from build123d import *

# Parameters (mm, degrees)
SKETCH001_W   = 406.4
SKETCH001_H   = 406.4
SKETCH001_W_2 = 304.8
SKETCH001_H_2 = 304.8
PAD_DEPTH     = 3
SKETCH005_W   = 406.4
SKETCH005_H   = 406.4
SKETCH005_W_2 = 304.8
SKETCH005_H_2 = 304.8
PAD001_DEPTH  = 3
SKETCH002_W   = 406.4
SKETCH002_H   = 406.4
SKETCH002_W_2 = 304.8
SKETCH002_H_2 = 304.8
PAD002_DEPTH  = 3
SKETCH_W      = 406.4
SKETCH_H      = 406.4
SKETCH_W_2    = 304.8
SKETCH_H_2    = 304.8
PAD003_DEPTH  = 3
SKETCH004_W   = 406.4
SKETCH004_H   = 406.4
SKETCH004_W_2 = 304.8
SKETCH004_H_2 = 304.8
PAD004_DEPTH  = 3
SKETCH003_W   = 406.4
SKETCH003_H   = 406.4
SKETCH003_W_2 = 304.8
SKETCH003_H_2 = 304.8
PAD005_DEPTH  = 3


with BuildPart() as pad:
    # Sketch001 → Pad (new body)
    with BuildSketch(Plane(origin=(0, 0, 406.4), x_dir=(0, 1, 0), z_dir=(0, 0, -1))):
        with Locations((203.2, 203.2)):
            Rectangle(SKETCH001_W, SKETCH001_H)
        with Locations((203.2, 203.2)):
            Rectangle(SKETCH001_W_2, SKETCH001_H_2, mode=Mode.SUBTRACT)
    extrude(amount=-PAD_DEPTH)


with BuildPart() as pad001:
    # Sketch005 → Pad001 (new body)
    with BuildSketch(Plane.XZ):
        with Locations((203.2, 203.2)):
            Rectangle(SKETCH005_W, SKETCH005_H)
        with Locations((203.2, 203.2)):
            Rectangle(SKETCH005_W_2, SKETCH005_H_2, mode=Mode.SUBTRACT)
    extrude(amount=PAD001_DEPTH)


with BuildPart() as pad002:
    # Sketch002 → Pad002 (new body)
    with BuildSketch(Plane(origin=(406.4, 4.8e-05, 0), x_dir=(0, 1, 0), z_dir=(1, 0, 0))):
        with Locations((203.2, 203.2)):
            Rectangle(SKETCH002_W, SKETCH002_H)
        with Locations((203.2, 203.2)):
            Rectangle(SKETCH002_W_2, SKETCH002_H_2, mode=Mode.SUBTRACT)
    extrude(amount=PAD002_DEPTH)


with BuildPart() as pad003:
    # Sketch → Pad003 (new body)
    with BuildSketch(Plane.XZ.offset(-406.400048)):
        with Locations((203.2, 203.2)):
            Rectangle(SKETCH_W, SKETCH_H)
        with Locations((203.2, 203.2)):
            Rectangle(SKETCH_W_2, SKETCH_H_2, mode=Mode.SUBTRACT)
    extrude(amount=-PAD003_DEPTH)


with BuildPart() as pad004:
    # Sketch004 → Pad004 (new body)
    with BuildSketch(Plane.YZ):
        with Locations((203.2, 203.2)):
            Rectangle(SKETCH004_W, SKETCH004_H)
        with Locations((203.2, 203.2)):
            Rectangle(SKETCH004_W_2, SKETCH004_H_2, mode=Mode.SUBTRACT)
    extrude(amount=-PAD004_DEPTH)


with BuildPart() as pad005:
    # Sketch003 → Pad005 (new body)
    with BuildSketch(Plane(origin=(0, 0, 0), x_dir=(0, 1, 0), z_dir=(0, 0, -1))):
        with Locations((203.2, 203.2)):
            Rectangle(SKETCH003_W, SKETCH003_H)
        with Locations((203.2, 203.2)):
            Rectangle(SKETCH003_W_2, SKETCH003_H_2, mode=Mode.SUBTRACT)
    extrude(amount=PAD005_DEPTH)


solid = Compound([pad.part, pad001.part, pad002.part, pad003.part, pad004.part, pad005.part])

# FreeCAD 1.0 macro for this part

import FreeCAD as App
import Part
import Sketcher
from FreeCAD import Vector
Q = App.Units.Quantity


def add_polygon(sketch, points):
    """Adds a closed chain of lines whose ends are joined by coincident constraints."""
    first, n = sketch.GeometryCount, len(points)
    for a, b in zip(points, points[1:] + points[:1]):
        sketch.addGeometry(Part.LineSegment(App.Vector(*a, 0), App.Vector(*b, 0)), False)
    for i in range(n):
        sketch.addConstraint(Sketcher.Constraint("Coincident", first + i, 2, first + (i + 1) % n, 1))

doc = App.newDocument("Part")
body = doc.addObject("PartDesign::Body", "Body")

sketch1 = body.newObject("Sketcher::SketchObject", "Sketch")
sketch1.AttachmentSupport = (doc.getObject("XY_Plane"), [""])
sketch1.MapMode = "FlatFace"
sketch1.AttachmentOffset = App.Placement(Vector(0, 0, 16 * 25.4), App.Rotation())
add_polygon(sketch1, [(406, 0), (0, 0), (0, 406), (406, 406)])
add_polygon(sketch1, [(51, 356), (51, 51), (356, 51), (356, 356)])
sketch1.addConstraint([
    Sketcher.Constraint("Horizontal", 0),
    Sketcher.Constraint("Vertical", 1),
    Sketcher.Constraint("Horizontal", 2),
    Sketcher.Constraint("Vertical", 3),
    Sketcher.Constraint("Vertical", 4),
    Sketcher.Constraint("Horizontal", 5),
    Sketcher.Constraint("Vertical", 6),
    Sketcher.Constraint("Horizontal", 7),
    Sketcher.Constraint("Coincident", 0, 2, -1, 1),
    Sketcher.Constraint("Equal", 2, 1),
    Sketcher.Constraint("Equal", 7, 4),
    Sketcher.Constraint("DistanceX", 0, 2, 0, 1, Q("16 in")),
    Sketcher.Constraint("DistanceX", 5, 1, 5, 2, Q("12 in")),
    Sketcher.Constraint("DistanceX", -1, 1, 4, 2, Q("2 in")),
    Sketcher.Constraint("DistanceY", -1, 1, 4, 2, Q("2 in")),
])
pad1 = body.newObject("PartDesign::Pad", "Pad")
pad1.Profile = sketch1
pad1.Length = 3
body2 = doc.addObject("PartDesign::Body", "Body001")

sketch2 = body2.newObject("Sketcher::SketchObject", "Sketch001")
sketch2.AttachmentSupport = (doc.getObject("XZ_Plane001"), [""])
sketch2.MapMode = "FlatFace"
add_polygon(sketch2, [(0, 406), (0, 0), (406, 0), (406, 406)])
add_polygon(sketch2, [(356, 51), (51, 51), (51, 356), (356, 356)])
sketch2.addConstraint([
    Sketcher.Constraint("Vertical", 0),
    Sketcher.Constraint("Horizontal", 1),
    Sketcher.Constraint("Vertical", 2),
    Sketcher.Constraint("Horizontal", 3),
    Sketcher.Constraint("Horizontal", 4),
    Sketcher.Constraint("Vertical", 5),
    Sketcher.Constraint("Horizontal", 6),
    Sketcher.Constraint("Vertical", 7),
    Sketcher.Constraint("Coincident", 0, 2, -1, 1),
    Sketcher.Constraint("Equal", 3, 0),
    Sketcher.Constraint("Equal", 6, 5),
    Sketcher.Constraint("DistanceX", 1, 1, 1, 2, Q("16 in")),
    Sketcher.Constraint("DistanceX", 4, 2, 4, 1, Q("12 in")),
    Sketcher.Constraint("DistanceX", -1, 1, 4, 2, Q("2 in")),
    Sketcher.Constraint("DistanceY", -1, 1, 4, 2, Q("2 in")),
])
pad2 = body2.newObject("PartDesign::Pad", "Pad001")
pad2.Profile = sketch2
pad2.Length = 3
body3 = doc.addObject("PartDesign::Body", "Body002")

sketch3 = body3.newObject("Sketcher::SketchObject", "Sketch002")
sketch3.AttachmentSupport = (doc.getObject("YZ_Plane002"), [""])
sketch3.MapMode = "FlatFace"
sketch3.AttachmentOffset = App.Placement(Vector(0, 0, 16 * 25.4), App.Rotation())
add_polygon(sketch3, [(0, 406), (0, 0), (406, 0), (406, 406)])
add_polygon(sketch3, [(356, 51), (51, 51), (51, 356), (356, 356)])
sketch3.addConstraint([
    Sketcher.Constraint("Vertical", 0),
    Sketcher.Constraint("Horizontal", 1),
    Sketcher.Constraint("Vertical", 2),
    Sketcher.Constraint("Horizontal", 3),
    Sketcher.Constraint("Horizontal", 4),
    Sketcher.Constraint("Vertical", 5),
    Sketcher.Constraint("Horizontal", 6),
    Sketcher.Constraint("Vertical", 7),
    Sketcher.Constraint("PointOnObject", 0, 2, -1),
    Sketcher.Constraint("Equal", 3, 0),
    Sketcher.Constraint("Equal", 6, 5),
    Sketcher.Constraint("DistanceX", 1, 1, 1, 2, Q("16 in")),
    Sketcher.Constraint("DistanceX", 4, 2, 4, 1, Q("12 in")),
    Sketcher.Constraint("DistanceY", -1, 1, 4, 2, Q("2 in")),
    Sketcher.Constraint("DistanceX", 0, 2, 4, 2, Q("2 in")),
    Sketcher.Constraint("DistanceX", -1, 1, 1, 2, Q("406.400048 mm")),
])
pad3 = body3.newObject("PartDesign::Pad", "Pad002")
pad3.Profile = sketch3
pad3.Length = 3
body4 = doc.addObject("PartDesign::Body", "Body003")

sketch4 = body4.newObject("Sketcher::SketchObject", "Sketch003")
sketch4.AttachmentSupport = (doc.getObject("XZ_Plane003"), [""])
sketch4.MapMode = "FlatFace"
sketch4.AttachmentOffset = App.Placement(Vector(0, 0, -406.400048), App.Rotation())
add_polygon(sketch4, [(0, 406), (0, 0), (406, 0), (406, 406)])
add_polygon(sketch4, [(356, 51), (51, 51), (51, 356), (356, 356)])
sketch4.addConstraint([
    Sketcher.Constraint("Vertical", 0),
    Sketcher.Constraint("Horizontal", 1),
    Sketcher.Constraint("Vertical", 2),
    Sketcher.Constraint("Horizontal", 3),
    Sketcher.Constraint("Horizontal", 4),
    Sketcher.Constraint("Vertical", 5),
    Sketcher.Constraint("Horizontal", 6),
    Sketcher.Constraint("Vertical", 7),
    Sketcher.Constraint("Coincident", 0, 2, -1, 1),
    Sketcher.Constraint("Equal", 3, 0),
    Sketcher.Constraint("Equal", 6, 5),
    Sketcher.Constraint("DistanceX", 1, 1, 1, 2, Q("16 in")),
    Sketcher.Constraint("DistanceX", 4, 2, 4, 1, Q("12 in")),
    Sketcher.Constraint("DistanceX", -1, 1, 4, 2, Q("2 in")),
    Sketcher.Constraint("DistanceY", -1, 1, 4, 2, Q("2 in")),
])
pad4 = body4.newObject("PartDesign::Pad", "Pad003")
pad4.Profile = sketch4
pad4.Length = 3
pad4.Reversed = True
body5 = doc.addObject("PartDesign::Body", "Body004")

sketch5 = body5.newObject("Sketcher::SketchObject", "Sketch004")
sketch5.AttachmentSupport = (doc.getObject("YZ_Plane004"), [""])
sketch5.MapMode = "FlatFace"
add_polygon(sketch5, [(0, 406), (0, 0), (406, 0), (406, 406)])
add_polygon(sketch5, [(356, 51), (51, 51), (51, 356), (356, 356)])
sketch5.addConstraint([
    Sketcher.Constraint("Vertical", 0),
    Sketcher.Constraint("Horizontal", 1),
    Sketcher.Constraint("Vertical", 2),
    Sketcher.Constraint("Horizontal", 3),
    Sketcher.Constraint("Horizontal", 4),
    Sketcher.Constraint("Vertical", 5),
    Sketcher.Constraint("Horizontal", 6),
    Sketcher.Constraint("Vertical", 7),
    Sketcher.Constraint("Coincident", 0, 2, -1, 1),
    Sketcher.Constraint("Equal", 3, 0),
    Sketcher.Constraint("Equal", 6, 5),
    Sketcher.Constraint("DistanceX", 1, 1, 1, 2, Q("16 in")),
    Sketcher.Constraint("DistanceX", 4, 2, 4, 1, Q("12 in")),
    Sketcher.Constraint("DistanceX", -1, 1, 4, 2, Q("2 in")),
    Sketcher.Constraint("DistanceY", -1, 1, 4, 2, Q("2 in")),
])
pad5 = body5.newObject("PartDesign::Pad", "Pad004")
pad5.Profile = sketch5
pad5.Length = 3
pad5.Reversed = True
body6 = doc.addObject("PartDesign::Body", "Body005")

sketch6 = body6.newObject("Sketcher::SketchObject", "Sketch005")
sketch6.AttachmentSupport = (doc.getObject("XY_Plane005"), [""])
sketch6.MapMode = "FlatFace"
add_polygon(sketch6, [(406, 0), (0, 0), (0, 406), (406, 406)])
add_polygon(sketch6, [(51, 356), (51, 51), (356, 51), (356, 356)])
sketch6.addConstraint([
    Sketcher.Constraint("Horizontal", 0),
    Sketcher.Constraint("Vertical", 1),
    Sketcher.Constraint("Horizontal", 2),
    Sketcher.Constraint("Vertical", 3),
    Sketcher.Constraint("Vertical", 4),
    Sketcher.Constraint("Horizontal", 5),
    Sketcher.Constraint("Vertical", 6),
    Sketcher.Constraint("Horizontal", 7),
    Sketcher.Constraint("Coincident", 0, 2, -1, 1),
    Sketcher.Constraint("Equal", 2, 1),
    Sketcher.Constraint("Equal", 7, 4),
    Sketcher.Constraint("DistanceX", 0, 2, 0, 1, Q("16 in")),
    Sketcher.Constraint("DistanceX", 5, 1, 5, 2, Q("12 in")),
    Sketcher.Constraint("DistanceX", -1, 1, 4, 2, Q("2 in")),
    Sketcher.Constraint("DistanceY", -1, 1, 4, 2, Q("2 in")),
])
pad6 = body6.newObject("PartDesign::Pad", "Pad005")
pad6.Profile = sketch6
pad6.Length = 3
pad6.Reversed = True

doc.recompute()
